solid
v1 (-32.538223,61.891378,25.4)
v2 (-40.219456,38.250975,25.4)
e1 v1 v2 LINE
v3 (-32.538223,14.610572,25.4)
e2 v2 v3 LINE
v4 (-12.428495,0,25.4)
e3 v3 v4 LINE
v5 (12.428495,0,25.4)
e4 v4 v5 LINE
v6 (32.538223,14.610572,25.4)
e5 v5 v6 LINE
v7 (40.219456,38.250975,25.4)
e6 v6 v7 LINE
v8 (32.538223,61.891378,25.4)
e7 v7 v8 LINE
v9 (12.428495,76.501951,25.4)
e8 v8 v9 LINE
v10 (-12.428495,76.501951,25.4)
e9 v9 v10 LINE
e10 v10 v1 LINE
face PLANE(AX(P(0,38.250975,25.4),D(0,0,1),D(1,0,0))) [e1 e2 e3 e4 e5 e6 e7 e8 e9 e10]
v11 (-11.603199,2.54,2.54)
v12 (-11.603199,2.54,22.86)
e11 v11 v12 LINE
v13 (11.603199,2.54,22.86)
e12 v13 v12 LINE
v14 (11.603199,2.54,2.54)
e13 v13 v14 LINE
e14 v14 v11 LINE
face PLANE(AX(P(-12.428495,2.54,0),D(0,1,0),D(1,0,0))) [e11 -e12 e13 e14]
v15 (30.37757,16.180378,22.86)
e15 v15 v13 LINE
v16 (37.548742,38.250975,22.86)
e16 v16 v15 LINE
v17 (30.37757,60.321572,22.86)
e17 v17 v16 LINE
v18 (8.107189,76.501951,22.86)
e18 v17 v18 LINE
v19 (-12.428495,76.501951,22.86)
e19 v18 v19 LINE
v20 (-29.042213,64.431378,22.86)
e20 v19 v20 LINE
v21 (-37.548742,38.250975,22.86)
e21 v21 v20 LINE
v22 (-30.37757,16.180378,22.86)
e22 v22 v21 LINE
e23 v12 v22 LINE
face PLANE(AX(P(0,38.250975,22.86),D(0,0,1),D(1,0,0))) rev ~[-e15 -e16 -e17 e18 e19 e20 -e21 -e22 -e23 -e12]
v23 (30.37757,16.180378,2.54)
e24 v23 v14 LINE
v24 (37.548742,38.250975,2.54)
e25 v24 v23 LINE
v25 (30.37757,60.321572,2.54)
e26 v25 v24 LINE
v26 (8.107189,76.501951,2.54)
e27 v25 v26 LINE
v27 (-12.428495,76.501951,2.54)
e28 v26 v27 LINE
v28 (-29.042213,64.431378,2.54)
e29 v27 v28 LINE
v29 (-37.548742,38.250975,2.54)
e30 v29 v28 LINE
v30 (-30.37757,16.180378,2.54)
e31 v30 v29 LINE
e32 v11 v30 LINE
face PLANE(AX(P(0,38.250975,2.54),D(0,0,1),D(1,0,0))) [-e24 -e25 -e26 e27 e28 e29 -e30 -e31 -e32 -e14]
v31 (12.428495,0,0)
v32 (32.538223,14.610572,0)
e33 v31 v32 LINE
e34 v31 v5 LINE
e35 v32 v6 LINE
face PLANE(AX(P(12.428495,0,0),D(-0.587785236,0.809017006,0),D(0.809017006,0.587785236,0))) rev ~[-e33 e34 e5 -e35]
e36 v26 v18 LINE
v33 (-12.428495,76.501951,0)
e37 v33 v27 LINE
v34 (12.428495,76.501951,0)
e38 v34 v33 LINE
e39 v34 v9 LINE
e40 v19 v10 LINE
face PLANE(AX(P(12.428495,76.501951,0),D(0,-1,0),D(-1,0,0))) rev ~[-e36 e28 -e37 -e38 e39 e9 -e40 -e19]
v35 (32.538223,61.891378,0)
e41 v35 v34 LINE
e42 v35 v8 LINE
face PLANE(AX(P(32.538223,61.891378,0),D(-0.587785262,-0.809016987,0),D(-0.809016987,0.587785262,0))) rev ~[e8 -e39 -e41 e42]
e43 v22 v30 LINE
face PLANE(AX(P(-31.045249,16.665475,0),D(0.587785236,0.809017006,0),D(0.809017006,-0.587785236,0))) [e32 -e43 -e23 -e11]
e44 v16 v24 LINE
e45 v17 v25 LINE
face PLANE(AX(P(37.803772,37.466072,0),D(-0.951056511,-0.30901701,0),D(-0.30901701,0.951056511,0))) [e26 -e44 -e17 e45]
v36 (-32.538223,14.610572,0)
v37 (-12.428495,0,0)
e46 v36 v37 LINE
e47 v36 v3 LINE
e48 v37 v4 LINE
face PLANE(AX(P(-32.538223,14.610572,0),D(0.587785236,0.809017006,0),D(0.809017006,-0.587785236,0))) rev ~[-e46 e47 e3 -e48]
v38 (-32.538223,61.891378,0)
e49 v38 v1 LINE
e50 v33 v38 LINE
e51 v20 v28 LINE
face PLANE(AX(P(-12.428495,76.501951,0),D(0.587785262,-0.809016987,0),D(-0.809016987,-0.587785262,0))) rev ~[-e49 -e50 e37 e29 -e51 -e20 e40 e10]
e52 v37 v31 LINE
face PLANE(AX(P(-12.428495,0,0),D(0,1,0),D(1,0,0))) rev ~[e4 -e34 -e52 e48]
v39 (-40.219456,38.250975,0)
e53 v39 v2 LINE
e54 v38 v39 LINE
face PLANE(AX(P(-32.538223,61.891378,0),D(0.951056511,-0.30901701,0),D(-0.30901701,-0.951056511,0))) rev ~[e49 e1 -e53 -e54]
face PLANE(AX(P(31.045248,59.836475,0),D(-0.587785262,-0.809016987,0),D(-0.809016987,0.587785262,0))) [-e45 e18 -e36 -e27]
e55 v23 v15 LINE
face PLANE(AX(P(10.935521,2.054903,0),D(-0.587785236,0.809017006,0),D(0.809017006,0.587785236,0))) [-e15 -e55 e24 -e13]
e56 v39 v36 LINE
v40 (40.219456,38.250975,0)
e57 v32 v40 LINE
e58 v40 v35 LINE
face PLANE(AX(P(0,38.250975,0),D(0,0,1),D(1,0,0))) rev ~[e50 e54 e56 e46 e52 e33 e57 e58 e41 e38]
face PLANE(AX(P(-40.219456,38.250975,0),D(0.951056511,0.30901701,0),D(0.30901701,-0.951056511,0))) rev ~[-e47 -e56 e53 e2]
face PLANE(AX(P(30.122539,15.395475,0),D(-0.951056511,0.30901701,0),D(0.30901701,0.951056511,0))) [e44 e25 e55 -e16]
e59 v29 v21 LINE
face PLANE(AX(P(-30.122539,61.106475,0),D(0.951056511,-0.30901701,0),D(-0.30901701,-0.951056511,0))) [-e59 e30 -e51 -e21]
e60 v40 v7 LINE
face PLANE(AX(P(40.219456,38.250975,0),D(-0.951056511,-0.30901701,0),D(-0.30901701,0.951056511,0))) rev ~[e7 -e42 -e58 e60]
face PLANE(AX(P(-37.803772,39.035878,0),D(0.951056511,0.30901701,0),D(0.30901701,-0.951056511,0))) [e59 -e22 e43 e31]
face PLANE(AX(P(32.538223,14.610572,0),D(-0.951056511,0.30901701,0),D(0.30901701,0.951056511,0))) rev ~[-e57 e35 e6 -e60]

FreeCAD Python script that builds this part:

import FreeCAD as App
import Part
import Sketcher
Q = App.Units.Quantity


def faces_at(feature, points):
    """Names of the faces that lie closest to the given points."""
    faces = feature.Shape.Faces
    near = lambda p: min(range(len(faces)), key=lambda i: faces[i].distToShape(Part.Vertex(*p))[0])
    return sorted({f"Face{near(p) + 1}" for p in points})

doc = App.newDocument("Part")
params = doc.addObject("Spreadsheet::Sheet", "Params")
for row, (alias, value) in enumerate([
    ("pad1_length", "1 in"),
    ("thickness_wall", "0.1 in"),
], start=1):
    params.set(f"A{row}", alias)
    params.set(f"B{row}", "=" + value)
    params.setAlias(f"B{row}", alias)

body = doc.addObject("PartDesign::Body", "Body")

# Sketch on XY plane
sketch1 = doc.addObject("Sketcher::SketchObject", "Sketch")
body.addObject(sketch1)
sketch1.AttachmentSupport = (doc.XY_Plane, [""])
sketch1.MapMode = "FlatFace"
sketch1.addGeometry([
    Part.LineSegment(App.Vector(-12, 0, 0), App.Vector(12, 0, 0)),  # 0
    Part.LineSegment(App.Vector(12, 0, 0), App.Vector(33, 15, 0)),  # 1
    Part.LineSegment(App.Vector(33, 15, 0), App.Vector(40, 38, 0)),  # 2
    Part.LineSegment(App.Vector(40, 38, 0), App.Vector(33, 62, 0)),  # 3
    Part.LineSegment(App.Vector(33, 62, 0), App.Vector(12, 77, 0)),  # 4
    Part.LineSegment(App.Vector(12, 77, 0), App.Vector(-12, 77, 0)),  # 5
    Part.LineSegment(App.Vector(-12, 77, 0), App.Vector(-33, 62, 0)),  # 6
    Part.LineSegment(App.Vector(-33, 62, 0), App.Vector(-40, 38, 0)),  # 7
    Part.LineSegment(App.Vector(-40, 38, 0), App.Vector(-33, 15, 0)),  # 8
    Part.LineSegment(App.Vector(-33, 15, 0), App.Vector(-12, 0, 0)),  # 9
], False)
sketch1.addConstraint([
    Sketcher.Constraint("Coincident", 0, 2, 1, 1),
    Sketcher.Constraint("Coincident", 1, 2, 2, 1),
    Sketcher.Constraint("Coincident", 2, 2, 3, 1),
    Sketcher.Constraint("Coincident", 3, 2, 4, 1),
    Sketcher.Constraint("Coincident", 4, 2, 5, 1),
    Sketcher.Constraint("Coincident", 5, 2, 6, 1),
    Sketcher.Constraint("Coincident", 6, 2, 7, 1),
    Sketcher.Constraint("Coincident", 7, 2, 8, 1),
    Sketcher.Constraint("Coincident", 8, 2, 9, 1),
    Sketcher.Constraint("Coincident", 9, 2, 0, 1),
    Sketcher.Constraint("Horizontal", 0),
    Sketcher.Constraint("Horizontal", 5),
    Sketcher.Constraint("Symmetric", 0, 2, 9, 2, -1, 1),
    Sketcher.Constraint("Symmetric", 3, 2, 6, 2, -2),
    Sketcher.Constraint("Symmetric", 2, 2, 7, 2, -2),
    Sketcher.Constraint("Symmetric", 1, 2, 8, 2, -2),
    Sketcher.Constraint("Parallel", 1, 6),
    Sketcher.Constraint("Parallel", 2, 7),
    Sketcher.Constraint("Parallel", 4, 9),
    Sketcher.Constraint("Vertical", 1, 2, 3, 2),
    Sketcher.Constraint("Vertical", 0, 2, 4, 2),
    Sketcher.Constraint("Equal", 1, 2),
    Sketcher.Constraint("Angle", 1, Q("35.999999 deg")),
    Sketcher.Constraint("Angle", 2, Q("71.999999 deg")),
    Sketcher.Constraint("DistanceX", 0, 1, 0, 2, 24.85699),
    Sketcher.Constraint("Distance", 1, 24.85699),
])
pad1 = doc.addObject("PartDesign::Pad", "Pad")
body.addObject(pad1)
pad1.Profile = sketch1
pad1.setExpression("Length", "Params.pad1_length")
doc.recompute()

thickness = doc.addObject("PartDesign::Thickness", "Thickness")
body.addObject(thickness)
thickness.Base = (pad1, faces_at(pad1, [(-22.483, 69.197, 12.7), (0, 76.502, 12.7)]))
thickness.setExpression("Value", "Params.thickness_wall")
thickness.Reversed = True
thickness.Join = "Arc"

doc.recompute()
